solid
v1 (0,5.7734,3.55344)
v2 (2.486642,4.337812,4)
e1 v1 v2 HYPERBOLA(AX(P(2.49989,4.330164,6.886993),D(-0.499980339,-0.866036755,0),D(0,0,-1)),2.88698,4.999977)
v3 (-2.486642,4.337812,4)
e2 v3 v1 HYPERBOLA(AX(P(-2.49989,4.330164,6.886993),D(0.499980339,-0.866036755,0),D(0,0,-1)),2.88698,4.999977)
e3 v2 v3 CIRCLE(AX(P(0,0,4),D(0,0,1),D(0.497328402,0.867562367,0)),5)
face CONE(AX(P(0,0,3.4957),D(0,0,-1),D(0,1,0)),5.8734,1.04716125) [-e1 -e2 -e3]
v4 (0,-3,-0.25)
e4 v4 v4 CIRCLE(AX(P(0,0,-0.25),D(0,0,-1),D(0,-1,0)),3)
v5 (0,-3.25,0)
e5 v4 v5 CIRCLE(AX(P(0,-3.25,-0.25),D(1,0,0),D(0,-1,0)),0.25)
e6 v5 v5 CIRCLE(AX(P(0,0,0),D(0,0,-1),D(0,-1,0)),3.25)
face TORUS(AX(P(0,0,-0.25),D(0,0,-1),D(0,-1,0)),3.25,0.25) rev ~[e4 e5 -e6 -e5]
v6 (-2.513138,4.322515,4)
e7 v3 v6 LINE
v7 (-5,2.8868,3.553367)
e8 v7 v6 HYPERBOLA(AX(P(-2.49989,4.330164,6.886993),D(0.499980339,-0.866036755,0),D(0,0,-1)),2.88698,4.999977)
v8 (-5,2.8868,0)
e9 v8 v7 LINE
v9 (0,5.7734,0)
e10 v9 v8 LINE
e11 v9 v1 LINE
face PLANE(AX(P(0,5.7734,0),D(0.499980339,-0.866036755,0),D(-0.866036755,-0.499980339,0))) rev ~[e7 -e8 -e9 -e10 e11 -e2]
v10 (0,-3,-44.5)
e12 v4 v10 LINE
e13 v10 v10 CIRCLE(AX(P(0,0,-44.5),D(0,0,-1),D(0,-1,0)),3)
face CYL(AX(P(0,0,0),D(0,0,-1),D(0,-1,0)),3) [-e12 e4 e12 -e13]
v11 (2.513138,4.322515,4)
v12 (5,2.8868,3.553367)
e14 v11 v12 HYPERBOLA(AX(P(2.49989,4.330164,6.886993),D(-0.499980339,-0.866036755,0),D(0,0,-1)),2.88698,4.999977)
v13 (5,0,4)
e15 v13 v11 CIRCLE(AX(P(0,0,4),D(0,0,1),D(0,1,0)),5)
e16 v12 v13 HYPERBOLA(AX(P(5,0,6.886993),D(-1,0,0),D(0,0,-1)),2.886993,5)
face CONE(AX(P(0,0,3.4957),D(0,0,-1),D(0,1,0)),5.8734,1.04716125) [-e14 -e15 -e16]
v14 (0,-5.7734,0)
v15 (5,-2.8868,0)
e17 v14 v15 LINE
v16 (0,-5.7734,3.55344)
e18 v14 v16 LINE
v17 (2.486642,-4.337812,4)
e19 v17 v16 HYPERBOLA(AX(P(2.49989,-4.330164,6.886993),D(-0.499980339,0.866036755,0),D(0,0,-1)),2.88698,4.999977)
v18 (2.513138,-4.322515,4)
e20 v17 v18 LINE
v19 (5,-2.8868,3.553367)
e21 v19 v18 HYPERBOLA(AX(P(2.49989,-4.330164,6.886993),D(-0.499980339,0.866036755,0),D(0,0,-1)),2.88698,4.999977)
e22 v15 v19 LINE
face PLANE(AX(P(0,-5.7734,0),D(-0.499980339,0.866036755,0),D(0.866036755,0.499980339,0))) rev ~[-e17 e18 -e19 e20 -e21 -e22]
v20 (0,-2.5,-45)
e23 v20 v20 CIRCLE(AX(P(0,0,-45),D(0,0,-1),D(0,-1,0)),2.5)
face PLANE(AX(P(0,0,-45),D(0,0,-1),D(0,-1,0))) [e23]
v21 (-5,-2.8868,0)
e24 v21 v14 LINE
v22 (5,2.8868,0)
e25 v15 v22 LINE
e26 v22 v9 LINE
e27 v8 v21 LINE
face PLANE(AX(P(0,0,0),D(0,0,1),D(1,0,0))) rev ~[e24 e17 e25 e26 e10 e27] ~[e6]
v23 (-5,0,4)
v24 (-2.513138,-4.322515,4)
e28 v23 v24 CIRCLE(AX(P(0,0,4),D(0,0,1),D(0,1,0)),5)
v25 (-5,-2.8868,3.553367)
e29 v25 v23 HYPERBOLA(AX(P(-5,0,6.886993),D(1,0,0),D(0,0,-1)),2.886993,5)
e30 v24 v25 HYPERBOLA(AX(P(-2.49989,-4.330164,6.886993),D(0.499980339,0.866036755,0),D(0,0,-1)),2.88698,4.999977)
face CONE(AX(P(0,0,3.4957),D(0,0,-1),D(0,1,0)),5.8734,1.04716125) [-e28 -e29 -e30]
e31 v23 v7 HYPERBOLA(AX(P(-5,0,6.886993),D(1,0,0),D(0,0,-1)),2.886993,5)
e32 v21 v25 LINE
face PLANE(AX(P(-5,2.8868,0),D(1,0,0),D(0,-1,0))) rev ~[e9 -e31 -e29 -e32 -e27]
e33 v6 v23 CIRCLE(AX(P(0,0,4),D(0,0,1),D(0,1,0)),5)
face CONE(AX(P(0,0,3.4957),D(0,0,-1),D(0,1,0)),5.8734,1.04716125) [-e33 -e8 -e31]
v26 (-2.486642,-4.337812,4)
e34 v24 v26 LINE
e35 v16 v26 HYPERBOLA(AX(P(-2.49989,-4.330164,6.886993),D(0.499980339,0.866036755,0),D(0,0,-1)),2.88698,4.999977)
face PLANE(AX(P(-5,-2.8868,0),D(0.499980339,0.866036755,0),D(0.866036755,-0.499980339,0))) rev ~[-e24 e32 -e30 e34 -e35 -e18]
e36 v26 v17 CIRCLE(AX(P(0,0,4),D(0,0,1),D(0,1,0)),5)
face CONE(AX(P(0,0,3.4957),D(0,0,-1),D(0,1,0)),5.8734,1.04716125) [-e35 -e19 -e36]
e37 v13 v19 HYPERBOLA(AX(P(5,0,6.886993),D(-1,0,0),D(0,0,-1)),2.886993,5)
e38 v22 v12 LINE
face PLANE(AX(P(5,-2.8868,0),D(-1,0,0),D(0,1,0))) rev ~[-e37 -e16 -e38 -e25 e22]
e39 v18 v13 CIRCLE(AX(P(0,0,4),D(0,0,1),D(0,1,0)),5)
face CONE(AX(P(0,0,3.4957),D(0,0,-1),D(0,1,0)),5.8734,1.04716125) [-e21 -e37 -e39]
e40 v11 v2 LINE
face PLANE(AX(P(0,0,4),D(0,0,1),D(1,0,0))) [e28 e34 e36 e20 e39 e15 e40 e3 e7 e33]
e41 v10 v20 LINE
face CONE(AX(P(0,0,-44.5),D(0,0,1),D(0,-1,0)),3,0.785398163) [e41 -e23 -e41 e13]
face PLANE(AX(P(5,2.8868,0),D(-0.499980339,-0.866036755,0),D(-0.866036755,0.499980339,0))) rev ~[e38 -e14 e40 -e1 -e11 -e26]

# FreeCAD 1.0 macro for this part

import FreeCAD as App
import Part
import Sketcher


def edges_at(feature, points):
    """Names of the edges that pass closest to the given points."""
    edges = feature.Shape.Edges
    near = lambda p: min(range(len(edges)), key=lambda i: edges[i].distToShape(Part.Vertex(*p))[0])
    return sorted({f"Edge{near(p) + 1}" for p in points})

doc = App.newDocument("Part")
body = doc.addObject("PartDesign::Body", "Body")

# Sketch on XY plane
sketch1 = body.newObject("Sketcher::SketchObject", "Sketch")
sketch1.AttachmentSupport = (doc.getObject("XY_Plane"), [""])
sketch1.MapMode = "FlatFace"
sketch1.addGeometry(Part.LineSegment(App.Vector(0, 6, 0), App.Vector(-5, 3, 0)), False)
sketch1.addGeometry(Part.LineSegment(App.Vector(-5, 3, 0), App.Vector(-5, -3, 0)), False)
sketch1.addGeometry(Part.LineSegment(App.Vector(-5, -3, 0), App.Vector(0, -6, 0)), False)
sketch1.addGeometry(Part.LineSegment(App.Vector(0, -6, 0), App.Vector(5, -3, 0)), False)
sketch1.addGeometry(Part.LineSegment(App.Vector(5, -3, 0), App.Vector(5, 3, 0)), False)
sketch1.addGeometry(Part.LineSegment(App.Vector(5, 3, 0), App.Vector(0, 6, 0)), False)
sketch1.addConstraint(Sketcher.Constraint("Coincident", 0, 2, 1, 1))
sketch1.addConstraint(Sketcher.Constraint("Coincident", 1, 2, 2, 1))
sketch1.addConstraint(Sketcher.Constraint("Coincident", 2, 2, 3, 1))
sketch1.addConstraint(Sketcher.Constraint("Coincident", 3, 2, 4, 1))
sketch1.addConstraint(Sketcher.Constraint("Coincident", 4, 2, 5, 1))
sketch1.addConstraint(Sketcher.Constraint("Coincident", 5, 2, 0, 1))
sketch1.addConstraint(Sketcher.Constraint("Vertical", 1))
sketch1.addConstraint(Sketcher.Constraint("Vertical", 4))
sketch1.addConstraint(Sketcher.Constraint("Symmetric", 0, 2, 3, 2, -1, 1))
sketch1.addConstraint(Sketcher.Constraint("Symmetric", 2, 2, 5, 2, -1, 1))
sketch1.addConstraint(Sketcher.Constraint("PointOnObject", 2, 2, -2))
sketch1.addConstraint(Sketcher.Constraint("Parallel", 2, 5))
sketch1.addConstraint(Sketcher.Constraint("Horizontal", 1, 2, 3, 2))
sketch1.addConstraint(Sketcher.Constraint("DistanceX", 1, 2, 3, 2, 10.0))
sketch1.addConstraint(Sketcher.Constraint("DistanceY", 1, 2, 1, 1, 5.7736))
sketch1.addConstraint(Sketcher.Constraint("Distance", 0, 5.7734))
pad1 = body.newObject("PartDesign::Pad", "Pad")
pad1.Profile = sketch1
pad1.Length = 4

# Sketch on YZ plane
sketch2 = body.newObject("Sketcher::SketchObject", "Sketch001")
sketch2.AttachmentSupport = (doc.getObject("YZ_Plane"), [""])
sketch2.MapMode = "FlatFace"
sketch2.addGeometry(Part.LineSegment(App.Vector(5, 4, 0), App.Vector(5.9, 3.5, 0)), False)
sketch2.addGeometry(Part.LineSegment(App.Vector(5.9, 3.5, 0), App.Vector(5.9, 4, 0)), False)
sketch2.addGeometry(Part.LineSegment(App.Vector(5.9, 4, 0), App.Vector(5, 4, 0)), False)
sketch2.addConstraint(Sketcher.Constraint("Coincident", 0, 2, 1, 1))
sketch2.addConstraint(Sketcher.Constraint("Coincident", 1, 2, 2, 1))
sketch2.addConstraint(Sketcher.Constraint("Coincident", 2, 2, 0, 1))
sketch2.addConstraint(Sketcher.Constraint("Vertical", 1))
sketch2.addConstraint(Sketcher.Constraint("Horizontal", 2))
sketch2.addConstraint(Sketcher.Constraint("DistanceX", -1, 1, 2, 2, 5.0))
sketch2.addConstraint(Sketcher.Constraint("DistanceY", -1, 1, 1, 2, 4.0))
sketch2.addConstraint(Sketcher.Constraint("DistanceX", 2, 2, 2, 1, 0.8734))
sketch2.addConstraint(Sketcher.Constraint("DistanceY", 1, 1, 1, 2, 0.5043))
groove = body.newObject("PartDesign::Groove", "Groove")
groove.Profile = sketch2
groove.ReferenceAxis = (sketch2, ["V_Axis"])
groove.Angle = 360

# Sketch on YZ plane
sketch3 = body.newObject("Sketcher::SketchObject", "Sketch002")
sketch3.AttachmentSupport = (doc.getObject("YZ_Plane"), [""])
sketch3.MapMode = "FlatFace"
sketch3.addGeometry(Part.LineSegment(App.Vector(-3, -45, 0), App.Vector(0, -45, 0)), False)
sketch3.addGeometry(Part.LineSegment(App.Vector(0, -45, 0), App.Vector(0, 0, 0)), False)
sketch3.addGeometry(Part.LineSegment(App.Vector(0, 0, 0), App.Vector(-3, 0, 0)), False)
sketch3.addGeometry(Part.LineSegment(App.Vector(-3, 0, 0), App.Vector(-3, -45, 0)), False)
sketch3.addConstraint(Sketcher.Constraint("Coincident", 0, 2, 1, 1))
sketch3.addConstraint(Sketcher.Constraint("Coincident", 1, 2, 2, 1))
sketch3.addConstraint(Sketcher.Constraint("Coincident", 2, 2, 3, 1))
sketch3.addConstraint(Sketcher.Constraint("Coincident", 3, 2, 0, 1))
sketch3.addConstraint(Sketcher.Constraint("Horizontal", 0))
sketch3.addConstraint(Sketcher.Constraint("Vertical", 1))
sketch3.addConstraint(Sketcher.Constraint("Horizontal", 2))
sketch3.addConstraint(Sketcher.Constraint("Vertical", 3))
sketch3.addConstraint(Sketcher.Constraint("Coincident", 1, 2, -1, 1))
sketch3.addConstraint(Sketcher.Constraint("DistanceX", 0, 1, 0, 2, 3.0))
sketch3.addConstraint(Sketcher.Constraint("DistanceY", 1, 1, 1, 2, 45.0))
revolution = body.newObject("PartDesign::Revolution", "Revolution")
revolution.Profile = sketch3
revolution.ReferenceAxis = (sketch3, ["V_Axis"])
revolution.Angle = 360
doc.recompute()

chamfer = body.newObject("PartDesign::Chamfer", "Chamfer")
chamfer.Base = (revolution, edges_at(revolution, [(0, 3, -45)]))
chamfer.Size = 0.5
doc.recompute()

fillet = body.newObject("PartDesign::Fillet", "Fillet")
fillet.Base = (chamfer, edges_at(chamfer, [(0, 3, 0)]))
fillet.Radius = 0.25

doc.recompute()
